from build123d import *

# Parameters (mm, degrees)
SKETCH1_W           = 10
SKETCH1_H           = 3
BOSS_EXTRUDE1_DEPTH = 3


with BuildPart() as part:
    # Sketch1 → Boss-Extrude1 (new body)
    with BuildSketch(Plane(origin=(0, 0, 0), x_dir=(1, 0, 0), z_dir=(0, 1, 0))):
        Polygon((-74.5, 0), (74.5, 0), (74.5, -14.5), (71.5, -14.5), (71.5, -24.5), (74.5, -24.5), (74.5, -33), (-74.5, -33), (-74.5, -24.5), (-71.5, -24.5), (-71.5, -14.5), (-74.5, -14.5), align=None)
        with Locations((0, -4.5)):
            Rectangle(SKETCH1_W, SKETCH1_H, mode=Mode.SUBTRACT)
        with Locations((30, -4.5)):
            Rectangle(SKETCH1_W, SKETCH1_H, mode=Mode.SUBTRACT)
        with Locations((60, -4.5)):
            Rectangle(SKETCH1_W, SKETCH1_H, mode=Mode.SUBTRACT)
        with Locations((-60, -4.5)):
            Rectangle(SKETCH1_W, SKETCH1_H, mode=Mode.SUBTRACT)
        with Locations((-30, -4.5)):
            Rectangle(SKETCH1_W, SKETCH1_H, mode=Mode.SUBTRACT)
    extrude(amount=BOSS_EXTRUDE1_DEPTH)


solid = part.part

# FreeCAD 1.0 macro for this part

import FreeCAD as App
import Part
import Sketcher

V = App.Vector
Q = App.Units.Quantity

doc = App.newDocument("Part")
body = doc.addObject("PartDesign::Body", "Body")

sketch1 = doc.addObject("Sketcher::SketchObject", "Sketch")
body.addObject(sketch1)
sketch1.AttachmentSupport = (doc.XZ_Plane, [""])
sketch1.MapMode = "FlatFace"
sketch1.addGeometry(Part.LineSegment(V(74.5, 0, 0), V(-74.5, 0, 0)), False)
sketch1.addGeometry(Part.LineSegment(V(-74.5, 0, 0), V(-74.5, 14.5, 0)), False)
sketch1.addGeometry(Part.LineSegment(V(-74.5, 14.5, 0), V(-71.5, 14.5, 0)), False)
sketch1.addGeometry(Part.LineSegment(V(-71.5, 14.5, 0), V(-71.5, 24.5, 0)), False)
sketch1.addGeometry(Part.LineSegment(V(-71.5, 24.5, 0), V(-74.5, 24.5, 0)), False)
sketch1.addGeometry(Part.LineSegment(V(-74.5, 24.5, 0), V(-74.5, 33, 0)), False)
sketch1.addGeometry(Part.LineSegment(V(-74.5, 33, 0), V(74.5, 33, 0)), False)
sketch1.addGeometry(Part.LineSegment(V(74.5, 33, 0), V(74.5, 24.5, 0)), False)
sketch1.addGeometry(Part.LineSegment(V(74.5, 24.5, 0), V(71.5, 24.5, 0)), False)
sketch1.addGeometry(Part.LineSegment(V(71.5, 24.5, 0), V(71.5, 14.5, 0)), False)
sketch1.addGeometry(Part.LineSegment(V(71.5, 14.5, 0), V(74.5, 14.5, 0)), False)
sketch1.addGeometry(Part.LineSegment(V(74.5, 14.5, 0), V(74.5, 0, 0)), False)
sketch1.addGeometry(Part.LineSegment(V(55, 6, 0), V(55, 3, 0)), False)
sketch1.addGeometry(Part.LineSegment(V(55, 3, 0), V(65, 3, 0)), False)
sketch1.addGeometry(Part.LineSegment(V(65, 3, 0), V(65, 6, 0)), False)
sketch1.addGeometry(Part.LineSegment(V(65, 6, 0), V(55, 6, 0)), False)
sketch1.addGeometry(Part.LineSegment(V(25, 6, 0), V(25, 3, 0)), False)
sketch1.addGeometry(Part.LineSegment(V(25, 3, 0), V(35, 3, 0)), False)
sketch1.addGeometry(Part.LineSegment(V(35, 3, 0), V(35, 6, 0)), False)
sketch1.addGeometry(Part.LineSegment(V(35, 6, 0), V(25, 6, 0)), False)
sketch1.addGeometry(Part.LineSegment(V(-5, 6, 0), V(-5, 3, 0)), False)
sketch1.addGeometry(Part.LineSegment(V(-5, 3, 0), V(5, 3, 0)), False)
sketch1.addGeometry(Part.LineSegment(V(5, 3, 0), V(5, 6, 0)), False)
sketch1.addGeometry(Part.LineSegment(V(5, 6, 0), V(-5, 6, 0)), False)
sketch1.addGeometry(Part.LineSegment(V(-35, 6, 0), V(-35, 3, 0)), False)
sketch1.addGeometry(Part.LineSegment(V(-35, 3, 0), V(-25, 3, 0)), False)
sketch1.addGeometry(Part.LineSegment(V(-25, 3, 0), V(-25, 6, 0)), False)
sketch1.addGeometry(Part.LineSegment(V(-25, 6, 0), V(-35, 6, 0)), False)
sketch1.addGeometry(Part.LineSegment(V(-65, 6, 0), V(-65, 3, 0)), False)
sketch1.addGeometry(Part.LineSegment(V(-65, 3, 0), V(-55, 3, 0)), False)
sketch1.addGeometry(Part.LineSegment(V(-55, 3, 0), V(-55, 6, 0)), False)
sketch1.addGeometry(Part.LineSegment(V(-55, 6, 0), V(-65, 6, 0)), False)
sketch1.addConstraint(Sketcher.Constraint("Coincident", 0, 2, 1, 1))
sketch1.addConstraint(Sketcher.Constraint("Coincident", 1, 2, 2, 1))
sketch1.addConstraint(Sketcher.Constraint("Coincident", 2, 2, 3, 1))
sketch1.addConstraint(Sketcher.Constraint("Coincident", 3, 2, 4, 1))
sketch1.addConstraint(Sketcher.Constraint("Coincident", 4, 2, 5, 1))
sketch1.addConstraint(Sketcher.Constraint("Coincident", 5, 2, 6, 1))
sketch1.addConstraint(Sketcher.Constraint("Coincident", 6, 2, 7, 1))
sketch1.addConstraint(Sketcher.Constraint("Coincident", 7, 2, 8, 1))
sketch1.addConstraint(Sketcher.Constraint("Coincident", 8, 2, 9, 1))
sketch1.addConstraint(Sketcher.Constraint("Coincident", 9, 2, 10, 1))
sketch1.addConstraint(Sketcher.Constraint("Coincident", 10, 2, 11, 1))
sketch1.addConstraint(Sketcher.Constraint("Coincident", 11, 2, 0, 1))
sketch1.addConstraint(Sketcher.Constraint("Coincident", 12, 2, 13, 1))
sketch1.addConstraint(Sketcher.Constraint("Coincident", 13, 2, 14, 1))
sketch1.addConstraint(Sketcher.Constraint("Coincident", 14, 2, 15, 1))
sketch1.addConstraint(Sketcher.Constraint("Coincident", 15, 2, 12, 1))
sketch1.addConstraint(Sketcher.Constraint("Coincident", 16, 2, 17, 1))
sketch1.addConstraint(Sketcher.Constraint("Coincident", 17, 2, 18, 1))
sketch1.addConstraint(Sketcher.Constraint("Coincident", 18, 2, 19, 1))
sketch1.addConstraint(Sketcher.Constraint("Coincident", 19, 2, 16, 1))
sketch1.addConstraint(Sketcher.Constraint("Coincident", 20, 2, 21, 1))
sketch1.addConstraint(Sketcher.Constraint("Coincident", 21, 2, 22, 1))
sketch1.addConstraint(Sketcher.Constraint("Coincident", 22, 2, 23, 1))
sketch1.addConstraint(Sketcher.Constraint("Coincident", 23, 2, 20, 1))
sketch1.addConstraint(Sketcher.Constraint("Coincident", 24, 2, 25, 1))
sketch1.addConstraint(Sketcher.Constraint("Coincident", 25, 2, 26, 1))
sketch1.addConstraint(Sketcher.Constraint("Coincident", 26, 2, 27, 1))
sketch1.addConstraint(Sketcher.Constraint("Coincident", 27, 2, 24, 1))
sketch1.addConstraint(Sketcher.Constraint("Coincident", 28, 2, 29, 1))
sketch1.addConstraint(Sketcher.Constraint("Coincident", 29, 2, 30, 1))
sketch1.addConstraint(Sketcher.Constraint("Coincident", 30, 2, 31, 1))
sketch1.addConstraint(Sketcher.Constraint("Coincident", 31, 2, 28, 1))
sketch1.addConstraint(Sketcher.Constraint("Horizontal", 0))
sketch1.addConstraint(Sketcher.Constraint("Vertical", 1))
sketch1.addConstraint(Sketcher.Constraint("Horizontal", 2))
sketch1.addConstraint(Sketcher.Constraint("Vertical", 3))
sketch1.addConstraint(Sketcher.Constraint("Horizontal", 4))
sketch1.addConstraint(Sketcher.Constraint("Vertical", 5))
sketch1.addConstraint(Sketcher.Constraint("Horizontal", 6))
sketch1.addConstraint(Sketcher.Constraint("Vertical", 7))
sketch1.addConstraint(Sketcher.Constraint("Horizontal", 8))
sketch1.addConstraint(Sketcher.Constraint("Vertical", 9))
sketch1.addConstraint(Sketcher.Constraint("Horizontal", 10))
sketch1.addConstraint(Sketcher.Constraint("Vertical", 11))
sketch1.addConstraint(Sketcher.Constraint("Vertical", 12))
sketch1.addConstraint(Sketcher.Constraint("Horizontal", 13))
sketch1.addConstraint(Sketcher.Constraint("Vertical", 14))
sketch1.addConstraint(Sketcher.Constraint("Horizontal", 15))
sketch1.addConstraint(Sketcher.Constraint("Vertical", 16))
sketch1.addConstraint(Sketcher.Constraint("Horizontal", 17))
sketch1.addConstraint(Sketcher.Constraint("Vertical", 18))
sketch1.addConstraint(Sketcher.Constraint("Horizontal", 19))
sketch1.addConstraint(Sketcher.Constraint("Vertical", 20))
sketch1.addConstraint(Sketcher.Constraint("Horizontal", 21))
sketch1.addConstraint(Sketcher.Constraint("Vertical", 22))
sketch1.addConstraint(Sketcher.Constraint("Horizontal", 23))
sketch1.addConstraint(Sketcher.Constraint("Vertical", 24))
sketch1.addConstraint(Sketcher.Constraint("Horizontal", 25))
sketch1.addConstraint(Sketcher.Constraint("Vertical", 26))
sketch1.addConstraint(Sketcher.Constraint("Horizontal", 27))
sketch1.addConstraint(Sketcher.Constraint("Vertical", 28))
sketch1.addConstraint(Sketcher.Constraint("Horizontal", 29))
sketch1.addConstraint(Sketcher.Constraint("Vertical", 30))
sketch1.addConstraint(Sketcher.Constraint("Horizontal", 31))
sketch1.addConstraint(Sketcher.Constraint("Symmetric", 0, 2, 11, 2, -1, 1))
sketch1.addConstraint(Sketcher.Constraint("Symmetric", 4, 2, 7, 2, -2))
sketch1.addConstraint(Sketcher.Constraint("Symmetric", 2, 2, 9, 2, -2))
sketch1.addConstraint(Sketcher.Constraint("Symmetric", 17, 2, 24, 2, -2))
sketch1.addConstraint(Sketcher.Constraint("Symmetric", 19, 2, 26, 2, -2))
sketch1.addConstraint(Sketcher.Constraint("Symmetric", 13, 2, 28, 2, -2))
sketch1.addConstraint(Sketcher.Constraint("Symmetric", 15, 2, 30, 2, -2))
sketch1.addConstraint(Sketcher.Constraint("Horizontal", 13, 2, 16, 2))
sketch1.addConstraint(Sketcher.Constraint("Horizontal", 15, 2, 18, 2))
sketch1.addConstraint(Sketcher.Constraint("Horizontal", 17, 2, 20, 2))
sketch1.addConstraint(Sketcher.Constraint("Horizontal", 19, 2, 22, 2))
sketch1.addConstraint(Sketcher.Constraint("Vertical", 1, 2, 4, 2))
sketch1.addConstraint(Sketcher.Constraint("Equal", 15, 17))
sketch1.addConstraint(Sketcher.Constraint("Equal", 19, 21))
sketch1.addConstraint(Sketcher.Constraint("Equal", 31, 3))
sketch1.addConstraint(Sketcher.Constraint("Equal", 10, 12))
sketch1.addConstraint(Sketcher.Constraint("DistanceX", 0, 2, 0, 1, Q("149 mm")))
sketch1.addConstraint(Sketcher.Constraint("DistanceX", 2, 1, 2, 2, Q("3 mm")))
sketch1.addConstraint(Sketcher.Constraint("DistanceX", 13, 1, 13, 2, Q("10 mm")))
sketch1.addConstraint(Sketcher.Constraint("DistanceY", 1, 1, 1, 2, Q("14.5 mm")))
sketch1.addConstraint(Sketcher.Constraint("DistanceY", 5, 1, 5, 2, Q("8.5 mm")))
sketch1.addConstraint(Sketcher.Constraint("DistanceX", -1, 1, 12, 2, Q("55 mm")))
sketch1.addConstraint(Sketcher.Constraint("DistanceY", -1, 1, 12, 2, Q("3 mm")))
sketch1.addConstraint(Sketcher.Constraint("DistanceX", -1, 1, 16, 2, Q("25 mm")))
sketch1.addConstraint(Sketcher.Constraint("DistanceX", 20, 2, -1, 1, Q("5 mm")))
pad1 = doc.addObject("PartDesign::Pad", "Pad")
body.addObject(pad1)
pad1.Profile = sketch1
pad1.Length = 3
pad1.Reversed = True

doc.recompute()
